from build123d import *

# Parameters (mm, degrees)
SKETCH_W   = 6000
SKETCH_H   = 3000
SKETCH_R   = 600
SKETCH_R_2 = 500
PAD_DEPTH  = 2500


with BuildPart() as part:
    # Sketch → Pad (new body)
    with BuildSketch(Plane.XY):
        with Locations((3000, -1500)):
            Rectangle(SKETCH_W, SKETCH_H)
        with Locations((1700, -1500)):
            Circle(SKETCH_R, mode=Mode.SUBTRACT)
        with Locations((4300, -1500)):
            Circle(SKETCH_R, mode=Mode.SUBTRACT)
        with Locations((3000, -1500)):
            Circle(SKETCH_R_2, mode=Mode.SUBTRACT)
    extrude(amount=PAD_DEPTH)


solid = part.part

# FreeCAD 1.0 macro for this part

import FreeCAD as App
import Part
import Sketcher

V = App.Vector

doc = App.newDocument("Part")
body = doc.addObject("PartDesign::Body", "Body")

# Sketch on XY plane
sketch1 = body.newObject("Sketcher::SketchObject", "Sketch")
sketch1.AttachmentSupport = (doc.getObject("XY_Plane"), [""])
sketch1.MapMode = "FlatFace"
sketch1.addGeometry([
    Part.LineSegment(V(0, 0, 0), V(0, -3000, 0)),  # 0
    Part.LineSegment(V(0, -3000, 0), V(6000, -3000, 0)),  # 1
    Part.LineSegment(V(6000, -3000, 0), V(6000, 0, 0)),  # 2
    Part.LineSegment(V(6000, 0, 0), V(0, 0, 0)),  # 3
    Part.Circle(V(1700, -1500, 0), V(0, 0, 1), 600),  # 4
    Part.Circle(V(3000, -1500, 0), V(0, 0, 1), 500),  # 5
    Part.Circle(V(4300, -1500, 0), V(0, 0, 1), 600),  # 6
], False)
sketch1.addConstraint([
    Sketcher.Constraint("Coincident", 0, 2, 1, 1),
    Sketcher.Constraint("Coincident", 1, 2, 2, 1),
    Sketcher.Constraint("Coincident", 2, 2, 3, 1),
    Sketcher.Constraint("Coincident", 3, 2, 0, 1),
    Sketcher.Constraint("Vertical", 0),
    Sketcher.Constraint("Horizontal", 1),
    Sketcher.Constraint("Vertical", 2),
    Sketcher.Constraint("Horizontal", 3),
    Sketcher.Constraint("Coincident", 3, 2, -1, 1),
    Sketcher.Constraint("Equal", 4, 6),
    Sketcher.Constraint("Horizontal", 4, 3, 5, 3),
    Sketcher.Constraint("Horizontal", 5, 3, 6, 3),
    Sketcher.Constraint("Diameter", 4, 1200.0),
    Sketcher.Constraint("Diameter", 5, 1000.0),
    Sketcher.Constraint("DistanceX", 1, 1, 1, 2, 6000.0),
    Sketcher.Constraint("DistanceY", 0, 2, 0, 1, 3000.0),
    Sketcher.Constraint("DistanceX", -1, 1, 4, 3, 1700.0),
    Sketcher.Constraint("DistanceY", 4, 3, -1, 1, 1500.0),
    Sketcher.Constraint("DistanceX", -1, 1, 5, 3, 3000.0),
    Sketcher.Constraint("DistanceX", -1, 1, 6, 3, 4300.0),
])
pad1 = body.newObject("PartDesign::Pad", "Pad")
pad1.Profile = sketch1
pad1.Length = 2500

doc.recompute()
